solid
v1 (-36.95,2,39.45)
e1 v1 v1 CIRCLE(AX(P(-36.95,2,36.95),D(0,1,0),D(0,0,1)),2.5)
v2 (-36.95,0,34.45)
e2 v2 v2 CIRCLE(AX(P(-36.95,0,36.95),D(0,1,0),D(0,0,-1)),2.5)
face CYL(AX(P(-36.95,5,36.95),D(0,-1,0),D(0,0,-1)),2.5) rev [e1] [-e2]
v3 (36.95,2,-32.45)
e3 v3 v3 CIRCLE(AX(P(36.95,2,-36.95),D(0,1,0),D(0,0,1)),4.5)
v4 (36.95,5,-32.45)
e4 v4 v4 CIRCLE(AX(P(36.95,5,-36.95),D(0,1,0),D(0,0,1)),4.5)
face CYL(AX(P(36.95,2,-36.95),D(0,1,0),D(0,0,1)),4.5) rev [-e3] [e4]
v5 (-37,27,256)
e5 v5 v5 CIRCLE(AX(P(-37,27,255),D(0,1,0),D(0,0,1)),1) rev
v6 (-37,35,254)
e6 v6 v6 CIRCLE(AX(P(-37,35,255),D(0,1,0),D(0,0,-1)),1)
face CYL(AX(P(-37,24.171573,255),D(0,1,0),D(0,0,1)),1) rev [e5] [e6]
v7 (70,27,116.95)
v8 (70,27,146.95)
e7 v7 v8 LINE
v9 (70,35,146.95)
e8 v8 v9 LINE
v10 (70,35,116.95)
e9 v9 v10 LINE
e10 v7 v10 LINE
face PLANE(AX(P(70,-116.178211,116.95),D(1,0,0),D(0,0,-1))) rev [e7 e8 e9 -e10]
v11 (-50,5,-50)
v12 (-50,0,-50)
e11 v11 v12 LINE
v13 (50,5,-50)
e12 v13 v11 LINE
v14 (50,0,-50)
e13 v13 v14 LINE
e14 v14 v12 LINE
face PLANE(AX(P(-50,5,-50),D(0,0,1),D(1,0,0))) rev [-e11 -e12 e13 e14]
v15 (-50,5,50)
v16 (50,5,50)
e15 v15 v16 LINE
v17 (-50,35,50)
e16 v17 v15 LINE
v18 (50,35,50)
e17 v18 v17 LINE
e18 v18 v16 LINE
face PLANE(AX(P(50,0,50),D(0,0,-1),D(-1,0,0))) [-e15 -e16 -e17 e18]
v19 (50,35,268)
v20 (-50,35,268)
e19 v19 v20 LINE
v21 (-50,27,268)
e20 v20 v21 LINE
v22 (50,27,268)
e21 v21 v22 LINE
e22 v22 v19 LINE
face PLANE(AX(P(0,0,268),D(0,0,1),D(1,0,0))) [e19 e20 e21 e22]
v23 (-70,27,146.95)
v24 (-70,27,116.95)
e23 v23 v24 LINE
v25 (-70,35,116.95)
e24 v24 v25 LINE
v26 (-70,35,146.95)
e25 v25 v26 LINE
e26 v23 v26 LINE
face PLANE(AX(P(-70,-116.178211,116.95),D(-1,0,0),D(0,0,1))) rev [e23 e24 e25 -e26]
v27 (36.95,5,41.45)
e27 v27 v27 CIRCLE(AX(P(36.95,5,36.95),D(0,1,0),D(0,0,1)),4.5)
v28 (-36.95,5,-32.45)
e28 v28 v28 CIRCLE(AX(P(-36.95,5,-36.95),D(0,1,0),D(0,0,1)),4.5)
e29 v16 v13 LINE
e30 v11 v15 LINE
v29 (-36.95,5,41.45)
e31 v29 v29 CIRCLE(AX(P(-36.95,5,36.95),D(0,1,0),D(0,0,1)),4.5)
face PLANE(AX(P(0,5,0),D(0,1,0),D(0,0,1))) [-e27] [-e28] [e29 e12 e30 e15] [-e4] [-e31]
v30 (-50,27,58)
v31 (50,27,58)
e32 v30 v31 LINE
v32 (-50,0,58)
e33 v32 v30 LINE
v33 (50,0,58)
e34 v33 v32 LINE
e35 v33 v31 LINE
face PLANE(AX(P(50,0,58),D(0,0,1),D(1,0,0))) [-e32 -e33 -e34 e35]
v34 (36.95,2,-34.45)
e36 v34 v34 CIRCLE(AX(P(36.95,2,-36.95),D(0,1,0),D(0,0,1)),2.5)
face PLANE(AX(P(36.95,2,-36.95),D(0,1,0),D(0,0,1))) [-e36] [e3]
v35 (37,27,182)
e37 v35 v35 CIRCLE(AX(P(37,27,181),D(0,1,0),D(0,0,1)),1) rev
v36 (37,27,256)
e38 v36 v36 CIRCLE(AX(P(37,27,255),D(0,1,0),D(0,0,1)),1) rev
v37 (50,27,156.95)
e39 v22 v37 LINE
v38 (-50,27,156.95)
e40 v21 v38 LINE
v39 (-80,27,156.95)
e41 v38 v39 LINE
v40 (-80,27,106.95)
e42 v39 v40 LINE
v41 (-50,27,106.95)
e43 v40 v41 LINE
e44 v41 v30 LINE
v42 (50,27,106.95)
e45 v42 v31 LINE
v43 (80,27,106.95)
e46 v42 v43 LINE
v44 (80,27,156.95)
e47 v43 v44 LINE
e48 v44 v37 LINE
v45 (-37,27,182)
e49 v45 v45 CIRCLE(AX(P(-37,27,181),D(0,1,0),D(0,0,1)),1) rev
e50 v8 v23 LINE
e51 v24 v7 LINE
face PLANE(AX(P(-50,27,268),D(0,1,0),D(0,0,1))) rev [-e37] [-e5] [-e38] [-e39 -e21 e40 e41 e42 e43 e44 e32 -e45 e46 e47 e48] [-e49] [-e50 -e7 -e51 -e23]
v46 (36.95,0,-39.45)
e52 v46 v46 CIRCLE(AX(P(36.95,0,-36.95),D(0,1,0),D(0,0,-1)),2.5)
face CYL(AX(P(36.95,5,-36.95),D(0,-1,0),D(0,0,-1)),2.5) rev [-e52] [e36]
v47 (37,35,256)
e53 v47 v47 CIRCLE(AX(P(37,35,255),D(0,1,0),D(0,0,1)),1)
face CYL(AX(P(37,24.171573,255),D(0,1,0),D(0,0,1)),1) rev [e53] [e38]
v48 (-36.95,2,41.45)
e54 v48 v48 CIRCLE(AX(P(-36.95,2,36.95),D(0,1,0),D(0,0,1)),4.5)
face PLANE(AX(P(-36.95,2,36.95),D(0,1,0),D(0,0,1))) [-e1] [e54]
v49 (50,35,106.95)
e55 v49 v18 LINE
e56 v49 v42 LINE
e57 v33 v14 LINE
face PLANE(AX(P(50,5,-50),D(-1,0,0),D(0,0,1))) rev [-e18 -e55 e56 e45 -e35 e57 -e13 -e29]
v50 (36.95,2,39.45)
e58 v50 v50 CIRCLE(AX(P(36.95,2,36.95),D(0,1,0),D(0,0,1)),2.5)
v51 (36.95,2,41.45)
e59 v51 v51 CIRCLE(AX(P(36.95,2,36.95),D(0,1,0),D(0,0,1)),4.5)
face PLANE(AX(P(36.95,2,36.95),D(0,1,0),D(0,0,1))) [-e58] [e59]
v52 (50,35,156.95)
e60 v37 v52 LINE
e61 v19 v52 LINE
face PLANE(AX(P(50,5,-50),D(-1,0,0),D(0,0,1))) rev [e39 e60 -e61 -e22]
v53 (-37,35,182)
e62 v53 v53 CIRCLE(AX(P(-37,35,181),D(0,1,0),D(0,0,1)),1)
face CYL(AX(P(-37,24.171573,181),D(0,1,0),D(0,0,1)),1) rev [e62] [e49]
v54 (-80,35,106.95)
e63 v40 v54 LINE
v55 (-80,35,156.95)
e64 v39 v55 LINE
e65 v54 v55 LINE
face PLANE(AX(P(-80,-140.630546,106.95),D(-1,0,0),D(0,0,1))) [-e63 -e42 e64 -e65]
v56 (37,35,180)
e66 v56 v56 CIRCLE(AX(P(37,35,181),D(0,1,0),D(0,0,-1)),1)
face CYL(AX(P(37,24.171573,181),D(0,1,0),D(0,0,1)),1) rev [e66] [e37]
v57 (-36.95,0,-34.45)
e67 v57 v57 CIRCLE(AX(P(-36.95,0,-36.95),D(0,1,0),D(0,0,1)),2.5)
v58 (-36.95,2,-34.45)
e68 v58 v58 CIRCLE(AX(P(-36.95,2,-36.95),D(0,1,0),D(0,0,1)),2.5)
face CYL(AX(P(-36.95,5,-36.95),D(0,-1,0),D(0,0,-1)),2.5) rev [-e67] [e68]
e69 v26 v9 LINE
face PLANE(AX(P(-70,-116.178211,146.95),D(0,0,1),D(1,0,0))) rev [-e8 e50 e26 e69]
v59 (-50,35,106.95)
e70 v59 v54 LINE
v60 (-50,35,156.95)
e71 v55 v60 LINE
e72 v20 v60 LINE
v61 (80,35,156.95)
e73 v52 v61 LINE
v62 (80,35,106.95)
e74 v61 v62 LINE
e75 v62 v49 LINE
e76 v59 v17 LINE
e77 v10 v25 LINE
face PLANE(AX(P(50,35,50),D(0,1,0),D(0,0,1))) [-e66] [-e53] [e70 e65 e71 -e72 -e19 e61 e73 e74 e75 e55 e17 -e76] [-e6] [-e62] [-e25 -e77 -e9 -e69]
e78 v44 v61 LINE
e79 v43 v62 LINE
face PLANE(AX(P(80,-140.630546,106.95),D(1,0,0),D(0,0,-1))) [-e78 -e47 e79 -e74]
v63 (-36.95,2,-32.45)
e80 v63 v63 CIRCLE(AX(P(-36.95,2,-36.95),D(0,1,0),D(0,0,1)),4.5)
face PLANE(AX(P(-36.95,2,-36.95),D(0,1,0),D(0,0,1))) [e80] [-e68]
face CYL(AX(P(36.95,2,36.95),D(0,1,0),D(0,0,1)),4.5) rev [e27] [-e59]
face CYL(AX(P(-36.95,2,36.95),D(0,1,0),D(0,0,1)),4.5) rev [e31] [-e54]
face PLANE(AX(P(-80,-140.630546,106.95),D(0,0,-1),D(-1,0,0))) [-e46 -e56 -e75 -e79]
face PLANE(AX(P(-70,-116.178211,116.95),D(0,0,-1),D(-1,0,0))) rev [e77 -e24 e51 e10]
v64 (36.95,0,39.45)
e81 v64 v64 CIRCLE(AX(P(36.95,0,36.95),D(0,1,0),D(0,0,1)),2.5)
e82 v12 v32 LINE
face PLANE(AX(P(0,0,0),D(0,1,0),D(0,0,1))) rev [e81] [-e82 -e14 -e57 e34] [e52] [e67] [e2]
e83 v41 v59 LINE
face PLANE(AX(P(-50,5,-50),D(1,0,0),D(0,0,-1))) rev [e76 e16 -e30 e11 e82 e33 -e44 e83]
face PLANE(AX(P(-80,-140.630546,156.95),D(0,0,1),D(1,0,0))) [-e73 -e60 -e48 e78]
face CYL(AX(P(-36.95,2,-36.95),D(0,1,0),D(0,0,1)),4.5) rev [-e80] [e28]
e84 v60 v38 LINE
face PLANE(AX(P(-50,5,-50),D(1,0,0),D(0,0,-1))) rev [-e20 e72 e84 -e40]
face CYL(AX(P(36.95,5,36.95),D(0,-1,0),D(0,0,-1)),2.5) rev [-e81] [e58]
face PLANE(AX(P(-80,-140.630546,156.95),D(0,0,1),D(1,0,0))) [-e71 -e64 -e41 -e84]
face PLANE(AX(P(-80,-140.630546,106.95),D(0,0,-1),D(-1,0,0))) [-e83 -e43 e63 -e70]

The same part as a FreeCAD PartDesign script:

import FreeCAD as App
import Part
import Sketcher
from FreeCAD import Vector

doc = App.newDocument("Part")
body = doc.addObject("PartDesign::Body", "Body")

sketch1 = doc.addObject("Sketcher::SketchObject", "Sketch")
body.addObject(sketch1)
sketch1.AttachmentSupport = (doc.XZ_Plane, [""])
sketch1.MapMode = "FlatFace"
sketch1.addGeometry([
    Part.LineSegment(Vector(-50, -50, 0), Vector(-50, 50, 0)),
    Part.LineSegment(Vector(-50, 50, 0), Vector(50, 50, 0)),
    Part.LineSegment(Vector(50, 50, 0), Vector(50, -50, 0)),
    Part.LineSegment(Vector(50, -50, 0), Vector(-50, -50, 0)),
    Part.Circle(Vector(-36.95, 36.95, 0), Vector(0, 0, 1), 2.5),
    Part.Circle(Vector(36.95, 36.95, 0), Vector(0, 0, 1), 2.5),
    Part.Circle(Vector(-36.95, -36.95, 0), Vector(0, 0, 1), 2.5),
    Part.Circle(Vector(36.95, -36.95, 0), Vector(0, 0, 1), 2.5),
], False)
sketch1.addConstraint([
    Sketcher.Constraint("Coincident", 0, 2, 1, 1),
    Sketcher.Constraint("Coincident", 1, 2, 2, 1),
    Sketcher.Constraint("Coincident", 2, 2, 3, 1),
    Sketcher.Constraint("Coincident", 3, 2, 0, 1),
    Sketcher.Constraint("Vertical", 0),
    Sketcher.Constraint("Horizontal", 1),
    Sketcher.Constraint("Vertical", 2),
    Sketcher.Constraint("Horizontal", 3),
    Sketcher.Constraint("Equal", 4, 5),
    Sketcher.Constraint("Equal", 5, 6),
    Sketcher.Constraint("Equal", 6, 7),
    Sketcher.Constraint("Symmetric", 5, 3, 6, 3, -1, 1),
    Sketcher.Constraint("Symmetric", 4, 3, 7, 3, -1, 1),
    Sketcher.Constraint("Symmetric", 0, 2, 2, 2, -1, 1),
    Sketcher.Constraint("Symmetric", 4, 3, 5, 3, -2),
    Sketcher.Constraint("Equal", 3, 0),
    Sketcher.Constraint("Diameter", 4, 5.0),
    Sketcher.Constraint("DistanceX", 1, 1, 1, 2, 100.0),
    Sketcher.Constraint("DistanceX", 4, 3, 5, 3, 73.9),
    Sketcher.Constraint("DistanceY", 6, 3, 4, 3, 73.9),
])
pad1 = doc.addObject("PartDesign::Pad", "Pad")
body.addObject(pad1)
pad1.Profile = sketch1
pad1.Length = 5
pad1.Reversed = True

sketch2 = doc.addObject("Sketcher::SketchObject", "Sketch001")
body.addObject(sketch2)
sketch2.AttachmentSupport = (doc.XZ_Plane, [""])
sketch2.MapMode = "FlatFace"
sketch2.AttachmentOffset = App.Placement(Vector(0, 0, -5), App.Rotation())
sketch2.addGeometry([
    Part.Circle(Vector(-36.95, 36.95, 0), Vector(0, 0, 1), 4.5),
    Part.Circle(Vector(36.95, 36.95, 0), Vector(0, 0, 1), 4.5),
    Part.Circle(Vector(36.95, -36.95, 0), Vector(0, 0, 1), 4.5),
    Part.Circle(Vector(-36.95, -36.95, 0), Vector(0, 0, 1), 4.5),
], False)
sketch2.addConstraint([
    Sketcher.Constraint("Equal", 0, 1),
    Sketcher.Constraint("Equal", 1, 2),
    Sketcher.Constraint("Equal", 2, 3),
    Sketcher.Constraint("Symmetric", 0, 3, 2, 3, -1, 1),
    Sketcher.Constraint("Symmetric", 1, 3, 3, 3, -1, 1),
    Sketcher.Constraint("Symmetric", 0, 3, 1, 3, -2),
    Sketcher.Constraint("Diameter", 0, 9.0),
    Sketcher.Constraint("DistanceX", 0, 3, 1, 3, 73.9),
    Sketcher.Constraint("DistanceY", 2, 3, 1, 3, 73.9),
])
pocket1 = doc.addObject("PartDesign::Pocket", "Pocket")
body.addObject(pocket1)
pocket1.Profile = sketch2
pocket1.Length = 3
pocket1.Reversed = True

sketch3 = doc.addObject("Sketcher::SketchObject", "Sketch002")
body.addObject(sketch3)
sketch3.AttachmentSupport = (doc.YZ_Plane, [""])
sketch3.MapMode = "FlatFace"
sketch3.AttachmentOffset = App.Placement(Vector(0, 0, -50), App.Rotation())
sketch3.addGeometry([
    Part.LineSegment(Vector(35, 50, 0), Vector(0, 50, 0)),
    Part.LineSegment(Vector(0, 50, 0), Vector(0, 58, 0)),
    Part.LineSegment(Vector(0, 58, 0), Vector(35, 58, 0)),
    Part.LineSegment(Vector(35, 58, 0), Vector(35, 50, 0)),
], False)
sketch3.addConstraint([
    Sketcher.Constraint("Coincident", 0, 2, 1, 1),
    Sketcher.Constraint("Coincident", 1, 2, 2, 1),
    Sketcher.Constraint("Coincident", 2, 2, 3, 1),
    Sketcher.Constraint("Coincident", 3, 2, 0, 1),
    Sketcher.Constraint("Horizontal", 0),
    Sketcher.Constraint("Vertical", 1),
    Sketcher.Constraint("Horizontal", 2),
    Sketcher.Constraint("Vertical", 3),
    Sketcher.Constraint("PointOnObject", 0, 2, -2),
    Sketcher.Constraint("DistanceX", 0, 2, 0, 1, 35.0),
    Sketcher.Constraint("DistanceY", 1, 1, 1, 2, 8.0),
    Sketcher.Constraint("DistanceY", -1, 1, 0, 2, 50.0),
])
pad2 = doc.addObject("PartDesign::Pad", "Pad001")
body.addObject(pad2)
pad2.Profile = sketch3
pad2.Length = 100

sketch4 = doc.addObject("Sketcher::SketchObject", "Sketch003")
body.addObject(sketch4)
sketch4.AttachmentSupport = (doc.XY_Plane, [""])
sketch4.MapMode = "FlatFace"
sketch4.AttachmentOffset = App.Placement(Vector(0, 0, 58), App.Rotation())
sketch4.addGeometry([
    Part.LineSegment(Vector(-50, 35, 0), Vector(-50, 27, 0)),
    Part.LineSegment(Vector(-50, 27, 0), Vector(50, 27, 0)),
    Part.LineSegment(Vector(50, 27, 0), Vector(50, 35, 0)),
    Part.LineSegment(Vector(50, 35, 0), Vector(-50, 35, 0)),
], False)
sketch4.addConstraint([
    Sketcher.Constraint("Coincident", 0, 2, 1, 1),
    Sketcher.Constraint("Coincident", 1, 2, 2, 1),
    Sketcher.Constraint("Coincident", 2, 2, 3, 1),
    Sketcher.Constraint("Coincident", 3, 2, 0, 1),
    Sketcher.Constraint("Vertical", 0),
    Sketcher.Constraint("Horizontal", 1),
    Sketcher.Constraint("Vertical", 2),
    Sketcher.Constraint("Horizontal", 3),
    Sketcher.Constraint("DistanceX", 1, 1, 1, 2, 100.0),
    Sketcher.Constraint("DistanceY", 0, 2, 0, 1, 8.0),
    Sketcher.Constraint("DistanceX", 0, 2, -1, 1, 50.0),
    Sketcher.Constraint("DistanceY", -1, 1, 0, 2, 27.0),
])
pad3 = doc.addObject("PartDesign::Pad", "Pad002")
body.addObject(pad3)
pad3.Profile = sketch4
pad3.Length = 210

sketch5 = doc.addObject("Sketcher::SketchObject", "Sketch004")
body.addObject(sketch5)
sketch5.AttachmentSupport = (doc.XZ_Plane, [""])
sketch5.MapMode = "FlatFace"
sketch5.AttachmentOffset = App.Placement(Vector(0, 0, -35), App.Rotation())
sketch5.addGeometry([
    Part.LineSegment(Vector(-80, 106.95, 0), Vector(-80, 156.95, 0)),
    Part.LineSegment(Vector(-80, 156.95, 0), Vector(80, 156.95, 0)),
    Part.LineSegment(Vector(80, 156.95, 0), Vector(80, 106.95, 0)),
    Part.LineSegment(Vector(80, 106.95, 0), Vector(-80, 106.95, 0)),
], False)
sketch5.addConstraint([
    Sketcher.Constraint("Coincident", 0, 2, 1, 1),
    Sketcher.Constraint("Coincident", 1, 2, 2, 1),
    Sketcher.Constraint("Coincident", 2, 2, 3, 1),
    Sketcher.Constraint("Coincident", 3, 2, 0, 1),
    Sketcher.Constraint("Vertical", 0),
    Sketcher.Constraint("Horizontal", 1),
    Sketcher.Constraint("Vertical", 2),
    Sketcher.Constraint("Horizontal", 3),
    Sketcher.Constraint("DistanceX", 1, 1, 1, 2, 160.0),
    Sketcher.Constraint("DistanceY", 0, 1, 0, 2, 50.0),
    Sketcher.Constraint("DistanceX", 0, 2, -1, 1, 80.0),
    Sketcher.Constraint("DistanceY", -1, 1, 0, 2, 156.95),
])
pad4 = doc.addObject("PartDesign::Pad", "Pad003")
body.addObject(pad4)
pad4.Profile = sketch5
pad4.Length = 8

sketch6 = doc.addObject("Sketcher::SketchObject", "Sketch005")
body.addObject(sketch6)
sketch6.AttachmentSupport = (doc.XZ_Plane, [""])
sketch6.MapMode = "FlatFace"
sketch6.AttachmentOffset = App.Placement(Vector(0, 0, -35), App.Rotation())
sketch6.addGeometry([
    Part.LineSegment(Vector(-70, 116.95, 0), Vector(-70, 146.95, 0)),
    Part.LineSegment(Vector(-70, 146.95, 0), Vector(70, 146.95, 0)),
    Part.LineSegment(Vector(70, 146.95, 0), Vector(70, 116.95, 0)),
    Part.LineSegment(Vector(70, 116.95, 0), Vector(-70, 116.95, 0)),
], False)
sketch6.addConstraint([
    Sketcher.Constraint("Coincident", 0, 2, 1, 1),
    Sketcher.Constraint("Coincident", 1, 2, 2, 1),
    Sketcher.Constraint("Coincident", 2, 2, 3, 1),
    Sketcher.Constraint("Coincident", 3, 2, 0, 1),
    Sketcher.Constraint("Vertical", 0),
    Sketcher.Constraint("Horizontal", 1),
    Sketcher.Constraint("Vertical", 2),
    Sketcher.Constraint("Horizontal", 3),
    Sketcher.Constraint("DistanceX", 1, 1, 1, 2, 140.0),
    Sketcher.Constraint("DistanceY", 0, 1, 0, 2, 30.0),
    Sketcher.Constraint("DistanceX", 0, 2, -1, 1, 70.0),
    Sketcher.Constraint("DistanceY", -1, 1, 0, 2, 146.95),
])
pocket2 = doc.addObject("PartDesign::Pocket", "Pocket001")
body.addObject(pocket2)
pocket2.Profile = sketch6
pocket2.Length = 8
pocket2.Reversed = True

sketch7 = doc.addObject("Sketcher::SketchObject", "Sketch006")
body.addObject(sketch7)
sketch7.AttachmentSupport = (doc.XZ_Plane, [""])
sketch7.MapMode = "FlatFace"
sketch7.AttachmentOffset = App.Placement(Vector(0, 0, -35), App.Rotation())
sketch7.addGeometry([
    Part.Circle(Vector(-37, 181, 0), Vector(0, 0, 1), 1),
    Part.Circle(Vector(37, 181, 0), Vector(0, 0, 1), 1),
    Part.Circle(Vector(37, 255, 0), Vector(0, 0, 1), 1),
    Part.Circle(Vector(-37, 255, 0), Vector(0, 0, 1), 1),
], False)
sketch7.addConstraint([
    Sketcher.Constraint("Equal", 0, 1),
    Sketcher.Constraint("Equal", 1, 2),
    Sketcher.Constraint("Equal", 2, 3),
    Sketcher.Constraint("Symmetric", 0, 3, 1, 3, -2),
    Sketcher.Constraint("Symmetric", 2, 3, 3, 3, -2),
    Sketcher.Constraint("Vertical", 1, 3, 2, 3),
    Sketcher.Constraint("Diameter", 0, 2.0),
    Sketcher.Constraint("DistanceX", 0, 3, -1, 1, 37.0),
    Sketcher.Constraint("DistanceY", -1, 1, 0, 3, 181.0),
    Sketcher.Constraint("DistanceY", -1, 1, 2, 3, 255.0),
])
pocket3 = doc.addObject("PartDesign::Pocket", "Pocket002")
body.addObject(pocket3)
pocket3.Profile = sketch7
pocket3.Length = 8
pocket3.Reversed = True

doc.recompute()
